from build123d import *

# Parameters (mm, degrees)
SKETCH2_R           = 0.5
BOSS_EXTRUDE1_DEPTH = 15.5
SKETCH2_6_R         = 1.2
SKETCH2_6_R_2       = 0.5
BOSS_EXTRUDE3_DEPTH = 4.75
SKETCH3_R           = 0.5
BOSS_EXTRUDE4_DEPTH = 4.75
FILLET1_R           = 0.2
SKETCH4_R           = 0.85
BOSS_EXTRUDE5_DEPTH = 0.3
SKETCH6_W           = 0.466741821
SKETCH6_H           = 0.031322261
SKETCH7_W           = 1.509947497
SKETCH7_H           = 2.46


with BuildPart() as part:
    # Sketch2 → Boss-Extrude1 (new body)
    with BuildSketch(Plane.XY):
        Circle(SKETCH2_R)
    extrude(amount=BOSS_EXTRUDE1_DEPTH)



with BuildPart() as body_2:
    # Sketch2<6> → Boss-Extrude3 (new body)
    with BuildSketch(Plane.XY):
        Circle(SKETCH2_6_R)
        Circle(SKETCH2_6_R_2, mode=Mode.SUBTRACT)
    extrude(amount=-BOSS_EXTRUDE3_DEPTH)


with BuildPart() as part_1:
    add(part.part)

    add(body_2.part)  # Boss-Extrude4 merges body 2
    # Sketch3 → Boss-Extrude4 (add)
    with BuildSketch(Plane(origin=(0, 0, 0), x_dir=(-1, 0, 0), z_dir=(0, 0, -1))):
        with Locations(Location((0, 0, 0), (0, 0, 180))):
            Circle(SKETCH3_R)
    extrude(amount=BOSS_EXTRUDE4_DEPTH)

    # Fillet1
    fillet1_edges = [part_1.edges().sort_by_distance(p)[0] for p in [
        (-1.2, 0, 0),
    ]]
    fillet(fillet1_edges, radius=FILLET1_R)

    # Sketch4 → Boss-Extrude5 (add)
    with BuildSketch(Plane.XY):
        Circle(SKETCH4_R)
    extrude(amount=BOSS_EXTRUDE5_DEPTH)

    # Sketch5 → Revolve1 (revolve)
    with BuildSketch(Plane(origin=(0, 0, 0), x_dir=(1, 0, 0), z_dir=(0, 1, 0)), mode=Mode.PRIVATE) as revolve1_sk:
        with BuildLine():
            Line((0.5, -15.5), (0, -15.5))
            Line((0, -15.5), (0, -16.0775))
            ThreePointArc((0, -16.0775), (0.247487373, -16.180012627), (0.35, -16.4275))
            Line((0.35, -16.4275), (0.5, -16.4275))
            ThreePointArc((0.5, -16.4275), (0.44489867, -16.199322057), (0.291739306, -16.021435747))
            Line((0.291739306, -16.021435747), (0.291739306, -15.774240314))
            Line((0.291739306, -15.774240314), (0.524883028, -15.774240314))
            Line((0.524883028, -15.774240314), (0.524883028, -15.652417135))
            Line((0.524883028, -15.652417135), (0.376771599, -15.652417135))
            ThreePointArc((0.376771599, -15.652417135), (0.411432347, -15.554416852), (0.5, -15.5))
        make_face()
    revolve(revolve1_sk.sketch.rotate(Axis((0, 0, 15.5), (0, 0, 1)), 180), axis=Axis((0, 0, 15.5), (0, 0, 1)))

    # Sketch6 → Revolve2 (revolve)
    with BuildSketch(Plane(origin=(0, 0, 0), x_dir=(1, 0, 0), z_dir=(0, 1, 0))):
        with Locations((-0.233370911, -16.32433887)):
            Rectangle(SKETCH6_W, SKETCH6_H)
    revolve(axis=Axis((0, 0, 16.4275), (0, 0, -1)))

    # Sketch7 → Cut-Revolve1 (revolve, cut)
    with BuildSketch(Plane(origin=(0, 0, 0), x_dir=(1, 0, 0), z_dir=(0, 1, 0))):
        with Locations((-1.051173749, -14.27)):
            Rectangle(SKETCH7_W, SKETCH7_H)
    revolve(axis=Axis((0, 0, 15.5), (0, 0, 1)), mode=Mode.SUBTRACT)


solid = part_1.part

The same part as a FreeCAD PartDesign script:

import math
import FreeCAD as App
import Part
import Sketcher

V = App.Vector
Q = App.Units.Quantity


def edges_at(feature, points):
    """Names of the edges that pass closest to the given points."""
    edges = feature.Shape.Edges
    near = lambda p: min(range(len(edges)), key=lambda i: edges[i].distToShape(Part.Vertex(*p))[0])
    return sorted({f"Edge{near(p) + 1}" for p in points})


def add_polygon(sketch, points):
    """Adds a closed chain of lines whose ends are joined by coincident constraints."""
    first, n = sketch.GeometryCount, len(points)
    for a, b in zip(points, points[1:] + points[:1]):
        sketch.addGeometry(Part.LineSegment(App.Vector(*a, 0), App.Vector(*b, 0)), False)
    for i in range(n):
        sketch.addConstraint(Sketcher.Constraint("Coincident", first + i, 2, first + (i + 1) % n, 1))

doc = App.newDocument("Part")
body = doc.addObject("PartDesign::Body", "Body")

sketch1 = body.newObject("Sketcher::SketchObject", "Sketch")
sketch1.AttachmentSupport = (doc.getObject("XY_Plane"), [""])
sketch1.MapMode = "FlatFace"
sketch1.addGeometry(Part.Circle(V(0, 0, 0), V(0, 0, 1), 0.5), False)
sketch1.addConstraint([
    Sketcher.Constraint("Coincident", 0, 3, -1, 1),
    Sketcher.Constraint("Diameter", 0, Q("1 mm")),
])
pad1 = body.newObject("PartDesign::Pad", "Pad")
pad1.Profile = sketch1
pad1.Length = 15.5
body2 = doc.addObject("PartDesign::Body", "Body001")

sketch2 = body2.newObject("Sketcher::SketchObject", "Sketch001")
sketch2.AttachmentSupport = (doc.getObject("XY_Plane001"), [""])
sketch2.MapMode = "FlatFace"
sketch2.addGeometry([
    Part.Circle(V(0, 0, 0), V(0, 0, 1), 1.2),
    Part.Circle(V(0, 0, 0), V(0, 0, 1), 0.5),
], False)
sketch2.addConstraint([
    Sketcher.Constraint("Coincident", 0, 3, -1, 1),
    Sketcher.Constraint("Coincident", 1, 3, -1, 1),
    Sketcher.Constraint("Diameter", 1, Q("1 mm")),
    Sketcher.Constraint("Diameter", 0, Q("2.4 mm")),
])
pad2 = body2.newObject("PartDesign::Pad", "Pad001")
pad2.Profile = sketch2
pad2.Length = 4.75
pad2.Reversed = True
body.AllowCompound = True
doc.recompute()

boolean = body.newObject("PartDesign::Boolean", "Boolean")
boolean.Type = "Fuse"
boolean.addObjects([body2])

sketch3 = body.newObject("Sketcher::SketchObject", "Sketch002")
sketch3.AttachmentSupport = (doc.getObject("XY_Plane"), [""])
sketch3.MapMode = "FlatFace"
sketch3.addGeometry(Part.Circle(V(0, 0, 0), V(0, 0, 1), 0.5), False)
sketch3.addConstraint([
    Sketcher.Constraint("Coincident", 0, 3, -1, 1),
    Sketcher.Constraint("Diameter", 0, Q("1 mm")),
])
pad3 = body.newObject("PartDesign::Pad", "Pad002")
pad3.Profile = sketch3
pad3.Length = 4.75
pad3.Reversed = True
doc.recompute()

fillet = body.newObject("PartDesign::Fillet", "Fillet")
fillet.Base = (pad3, edges_at(pad3, [(-1.2, 0, 0)]))
fillet.Radius = 0.2

sketch4 = body.newObject("Sketcher::SketchObject", "Sketch003")
sketch4.AttachmentSupport = (doc.getObject("XY_Plane"), [""])
sketch4.MapMode = "FlatFace"
sketch4.addGeometry(Part.Circle(V(0, 0, 0), V(0, 0, 1), 0.8), False)
sketch4.addConstraint([
    Sketcher.Constraint("Coincident", 0, 3, -1, 1),
    Sketcher.Constraint("Diameter", 0, Q("1.7 mm")),
])
pad4 = body.newObject("PartDesign::Pad", "Pad003")
pad4.Profile = sketch4
pad4.Length = 0.3

sketch5 = body.newObject("Sketcher::SketchObject", "Sketch004")
sketch5.AttachmentSupport = (doc.getObject("XZ_Plane"), [""])
sketch5.MapMode = "FlatFace"
sketch5.addGeometry([
    Part.LineSegment(V(0.5, 15.5, 0), V(0, 15.5, 0)),
    Part.LineSegment(V(0, 15.5, 0), V(0, 16.08, 0)),
    Part.ArcOfCircle(Part.Circle(V(0, 16.43, 0), V(0, 0, 1), 0.35), math.radians(-90), math.radians(0)),
    Part.LineSegment(V(0.35, 16.43, 0), V(0.5, 16.43, 0)),
    Part.ArcOfCircle(Part.Circle(V(0, 16.43, 0), V(0, 0, 1), 0.5), math.radians(-54), math.radians(0)),
    Part.LineSegment(V(0.29, 16.02, 0), V(0.29, 15.77, 0)),
    Part.LineSegment(V(0.29, 15.77, 0), V(0.52, 15.77, 0)),
    Part.LineSegment(V(0.52, 15.77, 0), V(0.52, 15.65, 0)),
    Part.LineSegment(V(0.52, 15.65, 0), V(0.38, 15.65, 0)),
    Part.ArcOfCircle(Part.Circle(V(0.53, 15.65, 0), V(0, 0, 1), 0.16), math.radians(180), math.radians(258)),
], False)
sketch5.addConstraint([
    Sketcher.Constraint("Coincident", 0, 2, 1, 1),
    Sketcher.Constraint("Coincident", 1, 2, 2, 1),
    Sketcher.Constraint("Coincident", 2, 2, 3, 1),
    Sketcher.Constraint("Coincident", 3, 2, 4, 2),
    Sketcher.Constraint("Coincident", 4, 1, 5, 1),
    Sketcher.Constraint("Coincident", 5, 2, 6, 1),
    Sketcher.Constraint("Coincident", 6, 2, 7, 1),
    Sketcher.Constraint("Coincident", 7, 2, 8, 1),
    Sketcher.Constraint("Coincident", 8, 2, 9, 1),
    Sketcher.Constraint("Coincident", 9, 2, 0, 1),
    Sketcher.Constraint("Horizontal", 0),
    Sketcher.Constraint("Vertical", 1),
    Sketcher.Constraint("Horizontal", 3),
    Sketcher.Constraint("Vertical", 5),
    Sketcher.Constraint("Horizontal", 6),
    Sketcher.Constraint("Vertical", 7),
    Sketcher.Constraint("Horizontal", 8),
    Sketcher.Constraint("Coincident", 4, 3, 2, 3),
    Sketcher.Constraint("PointOnObject", 2, 3, -2),
    Sketcher.Constraint("PointOnObject", 0, 2, -2),
    Sketcher.Constraint("Horizontal", 4, 3, 2, 2),
    Sketcher.Constraint("Horizontal", 9, 3, 7, 2),
    Sketcher.Constraint("Vertical", 3, 2, 9, 2),
    Sketcher.Constraint("Radius", 4, Q("0.5 mm")),
    Sketcher.Constraint("Radius", 2, Q("0.35 mm")),
    Sketcher.Constraint("DistanceY", -1, 1, 0, 2, Q("15.5 mm")),
    Sketcher.Constraint("DistanceY", 1, 1, 1, 2, Q("0.5775 mm")),
    Sketcher.Constraint("Radius", 9, Q("0.155874 mm")),
    Sketcher.Constraint("DistanceX", 8, 2, 8, 1, Q("0.148111 mm")),
    Sketcher.Constraint("DistanceX", 6, 1, 6, 2, Q("0.233144 mm")),
    Sketcher.Constraint("DistanceY", 5, 2, 5, 1, Q("0.247195 mm")),
    Sketcher.Constraint("DistanceY", 7, 2, 7, 1, Q("0.121823 mm")),
])
revolution = body.newObject("PartDesign::Revolution", "Revolution")
revolution.Profile = sketch5
revolution.ReferenceAxis = (sketch5, ["V_Axis"])
revolution.Angle = 360

sketch6 = body.newObject("Sketcher::SketchObject", "Sketch005")
sketch6.AttachmentSupport = (doc.getObject("XZ_Plane"), [""])
sketch6.MapMode = "FlatFace"
add_polygon(sketch6, [(-0.467, 16.309), (-0.467, 16.34), (0, 16.34), (0, 16.309)])
sketch6.addConstraint([
    Sketcher.Constraint("Vertical", 0),
    Sketcher.Constraint("Horizontal", 1),
    Sketcher.Constraint("Vertical", 2),
    Sketcher.Constraint("Horizontal", 3),
    Sketcher.Constraint("PointOnObject", 1, 2, -2),
    Sketcher.Constraint("DistanceY", -1, 1, 0, 2, Q("16.34 mm")),
    Sketcher.Constraint("DistanceX", 1, 1, 1, 2, Q("0.466742 mm")),
    Sketcher.Constraint("DistanceY", 0, 1, 0, 2, Q("0.031322 mm")),
])
revolution2 = body.newObject("PartDesign::Revolution", "Revolution001")
revolution2.Profile = sketch6
revolution2.ReferenceAxis = (sketch6, ["V_Axis"])
revolution2.Angle = 360

sketch7 = body.newObject("Sketcher::SketchObject", "Sketch006")
sketch7.AttachmentSupport = (doc.getObject("XZ_Plane"), [""])
sketch7.MapMode = "FlatFace"
add_polygon(sketch7, [(-1.8, 13), (-1.8, 15.5), (-0.3, 15.5), (-0.3, 13)])
sketch7.addConstraint([
    Sketcher.Constraint("Vertical", 0),
    Sketcher.Constraint("Horizontal", 1),
    Sketcher.Constraint("Vertical", 2),
    Sketcher.Constraint("Horizontal", 3),
    Sketcher.Constraint("DistanceY", 0, 1, 0, 2, Q("2.46 mm")),
    Sketcher.Constraint("DistanceY", -1, 1, 0, 2, Q("15.5 mm")),
    Sketcher.Constraint("DistanceX", 1, 2, -1, 1, Q("0.2962 mm")),
    Sketcher.Constraint("DistanceX", 1, 1, 1, 2, Q("1.509947 mm")),
])
groove = body.newObject("PartDesign::Groove", "Groove")
groove.Profile = sketch7
groove.ReferenceAxis = (sketch7, ["V_Axis"])
groove.Angle = 360

doc.recompute()
